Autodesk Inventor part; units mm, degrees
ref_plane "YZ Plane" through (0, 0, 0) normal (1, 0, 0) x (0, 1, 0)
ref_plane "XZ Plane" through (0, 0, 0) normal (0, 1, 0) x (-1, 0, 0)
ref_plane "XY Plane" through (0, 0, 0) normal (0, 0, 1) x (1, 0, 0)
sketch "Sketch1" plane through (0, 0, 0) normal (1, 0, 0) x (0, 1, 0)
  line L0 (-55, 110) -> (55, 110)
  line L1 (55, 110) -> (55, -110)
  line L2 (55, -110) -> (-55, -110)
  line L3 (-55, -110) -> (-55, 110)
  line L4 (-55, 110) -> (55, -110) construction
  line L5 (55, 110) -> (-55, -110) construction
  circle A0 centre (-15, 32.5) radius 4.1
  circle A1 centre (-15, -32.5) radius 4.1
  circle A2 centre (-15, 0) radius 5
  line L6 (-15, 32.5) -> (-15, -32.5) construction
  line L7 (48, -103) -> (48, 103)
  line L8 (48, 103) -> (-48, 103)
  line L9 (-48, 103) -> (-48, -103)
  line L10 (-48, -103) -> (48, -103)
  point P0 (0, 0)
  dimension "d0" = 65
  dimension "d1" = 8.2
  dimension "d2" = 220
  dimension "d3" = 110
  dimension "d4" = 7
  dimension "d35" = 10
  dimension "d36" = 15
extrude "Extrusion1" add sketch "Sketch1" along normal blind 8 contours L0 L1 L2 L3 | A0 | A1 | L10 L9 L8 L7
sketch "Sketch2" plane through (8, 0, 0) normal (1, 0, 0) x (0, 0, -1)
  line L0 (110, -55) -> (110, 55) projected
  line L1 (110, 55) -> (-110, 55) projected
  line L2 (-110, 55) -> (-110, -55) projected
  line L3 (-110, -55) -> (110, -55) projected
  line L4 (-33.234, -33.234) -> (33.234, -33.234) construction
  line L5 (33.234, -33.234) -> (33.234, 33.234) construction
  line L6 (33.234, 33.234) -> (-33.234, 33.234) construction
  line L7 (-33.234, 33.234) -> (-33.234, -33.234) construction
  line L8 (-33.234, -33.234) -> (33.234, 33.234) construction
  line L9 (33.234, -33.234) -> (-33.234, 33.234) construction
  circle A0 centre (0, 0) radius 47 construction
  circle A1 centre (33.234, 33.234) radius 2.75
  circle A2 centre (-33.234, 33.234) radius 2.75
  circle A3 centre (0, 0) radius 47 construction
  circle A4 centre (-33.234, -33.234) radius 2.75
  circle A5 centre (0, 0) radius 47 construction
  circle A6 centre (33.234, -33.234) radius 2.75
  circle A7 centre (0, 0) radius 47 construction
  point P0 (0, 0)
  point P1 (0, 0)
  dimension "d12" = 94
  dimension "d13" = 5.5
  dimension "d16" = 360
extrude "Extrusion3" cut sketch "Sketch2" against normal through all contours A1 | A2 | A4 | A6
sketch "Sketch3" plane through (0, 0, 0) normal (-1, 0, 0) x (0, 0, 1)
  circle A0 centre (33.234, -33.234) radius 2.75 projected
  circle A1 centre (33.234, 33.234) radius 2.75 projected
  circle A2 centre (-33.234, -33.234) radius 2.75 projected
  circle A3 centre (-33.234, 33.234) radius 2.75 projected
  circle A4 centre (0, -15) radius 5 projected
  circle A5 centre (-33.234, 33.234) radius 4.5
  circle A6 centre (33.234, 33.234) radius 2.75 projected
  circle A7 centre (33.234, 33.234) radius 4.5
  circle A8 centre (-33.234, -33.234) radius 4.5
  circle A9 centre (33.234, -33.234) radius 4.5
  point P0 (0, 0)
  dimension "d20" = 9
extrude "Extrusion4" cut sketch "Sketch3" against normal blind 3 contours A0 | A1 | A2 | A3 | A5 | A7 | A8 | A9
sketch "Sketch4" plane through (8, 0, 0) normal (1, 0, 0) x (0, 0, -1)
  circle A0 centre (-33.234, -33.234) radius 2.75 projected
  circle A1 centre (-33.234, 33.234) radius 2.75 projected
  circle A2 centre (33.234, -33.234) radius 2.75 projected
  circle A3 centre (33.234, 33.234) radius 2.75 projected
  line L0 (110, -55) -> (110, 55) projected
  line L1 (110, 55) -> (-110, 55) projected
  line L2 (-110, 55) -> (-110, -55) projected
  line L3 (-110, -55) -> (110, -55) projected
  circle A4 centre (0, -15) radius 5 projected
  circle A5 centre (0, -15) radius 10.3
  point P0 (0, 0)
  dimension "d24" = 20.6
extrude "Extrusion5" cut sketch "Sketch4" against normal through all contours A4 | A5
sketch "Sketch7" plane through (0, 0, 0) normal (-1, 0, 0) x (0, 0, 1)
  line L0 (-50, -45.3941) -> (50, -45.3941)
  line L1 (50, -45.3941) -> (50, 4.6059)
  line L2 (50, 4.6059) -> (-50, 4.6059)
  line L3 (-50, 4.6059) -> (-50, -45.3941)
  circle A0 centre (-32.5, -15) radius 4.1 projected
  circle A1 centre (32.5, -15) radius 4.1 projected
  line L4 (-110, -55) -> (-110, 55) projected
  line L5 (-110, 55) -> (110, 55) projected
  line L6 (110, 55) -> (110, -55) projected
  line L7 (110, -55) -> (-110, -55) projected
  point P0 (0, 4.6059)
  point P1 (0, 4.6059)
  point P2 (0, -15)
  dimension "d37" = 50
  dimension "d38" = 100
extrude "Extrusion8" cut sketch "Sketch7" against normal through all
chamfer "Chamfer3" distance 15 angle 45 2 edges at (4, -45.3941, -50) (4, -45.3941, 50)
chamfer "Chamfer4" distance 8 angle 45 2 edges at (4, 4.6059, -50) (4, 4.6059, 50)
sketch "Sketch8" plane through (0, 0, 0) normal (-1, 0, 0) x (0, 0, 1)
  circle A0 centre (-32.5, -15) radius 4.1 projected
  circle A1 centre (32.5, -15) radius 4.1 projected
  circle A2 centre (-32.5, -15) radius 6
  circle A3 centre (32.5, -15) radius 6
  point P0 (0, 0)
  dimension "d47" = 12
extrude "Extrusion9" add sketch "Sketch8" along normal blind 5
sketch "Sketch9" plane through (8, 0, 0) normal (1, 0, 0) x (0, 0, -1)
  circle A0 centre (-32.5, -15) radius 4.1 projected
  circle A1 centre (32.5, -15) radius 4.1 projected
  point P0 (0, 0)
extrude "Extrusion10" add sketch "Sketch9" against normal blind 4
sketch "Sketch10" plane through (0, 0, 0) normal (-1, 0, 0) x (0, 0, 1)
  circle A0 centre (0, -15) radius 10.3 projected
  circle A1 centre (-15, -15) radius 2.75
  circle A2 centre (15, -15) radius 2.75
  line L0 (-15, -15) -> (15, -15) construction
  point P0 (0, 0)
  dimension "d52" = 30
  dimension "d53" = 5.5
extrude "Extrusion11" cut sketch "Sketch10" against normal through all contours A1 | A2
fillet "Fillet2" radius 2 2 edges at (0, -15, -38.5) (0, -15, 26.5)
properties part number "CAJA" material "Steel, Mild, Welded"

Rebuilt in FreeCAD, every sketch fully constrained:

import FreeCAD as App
import Part
import Sketcher

V = App.Vector


def edges_at(feature, points):
    """Names of the edges that pass closest to the given points."""
    edges = feature.Shape.Edges
    near = lambda p: min(range(len(edges)), key=lambda i: edges[i].distToShape(Part.Vertex(*p))[0])
    return sorted({f"Edge{near(p) + 1}" for p in points})


def add_polygon(sketch, points):
    """Adds a closed chain of lines whose ends are joined by coincident constraints."""
    first, n = sketch.GeometryCount, len(points)
    for a, b in zip(points, points[1:] + points[:1]):
        sketch.addGeometry(Part.LineSegment(App.Vector(*a, 0), App.Vector(*b, 0)), False)
    for i in range(n):
        sketch.addConstraint(Sketcher.Constraint("Coincident", first + i, 2, first + (i + 1) % n, 1))

doc = App.newDocument("Part")
body = doc.addObject("PartDesign::Body", "Body")

# Sketch on YZ plane
sketch1 = body.newObject("Sketcher::SketchObject", "Sketch")
sketch1.AttachmentSupport = (doc.getObject("YZ_Plane"), [""])
sketch1.MapMode = "FlatFace"
add_polygon(sketch1, [(55, 110), (-55, 110), (-55, -110), (55, -110)])  # lines 0-3
sketch1.addGeometry(Part.Circle(V(-15, 0, 0), V(0, 0, 1), 5), False)  # 4
sketch1.addConstraint([
    Sketcher.Constraint("Horizontal", 0),
    Sketcher.Constraint("Vertical", 1),
    Sketcher.Constraint("Horizontal", 2),
    Sketcher.Constraint("Vertical", 3),
    Sketcher.Constraint("Symmetric", 0, 2, 2, 2, -1, 1),
    Sketcher.Constraint("PointOnObject", 4, 3, -1),
    Sketcher.Constraint("Diameter", 4, 10.0),
    Sketcher.Constraint("DistanceX", 0, 2, 0, 1, 110.0),
    Sketcher.Constraint("DistanceY", 1, 2, 1, 1, 220.0),
    Sketcher.Constraint("DistanceX", 4, 3, -1, 1, 15.0),
])
pad1 = body.newObject("PartDesign::Pad", "Pad")
pad1.Profile = sketch1
pad1.Length = 8

# Sketch on YZ plane
sketch2 = body.newObject("Sketcher::SketchObject", "Sketch001")
sketch2.AttachmentSupport = (doc.getObject("YZ_Plane"), [""])
sketch2.MapMode = "FlatFace"
sketch2.AttachmentOffset = App.Placement(V(0, 0, 8), App.Rotation())
sketch2.addGeometry([
    Part.Circle(V(33.2, -33.2, 0), V(0, 0, 1), 2.8),
    Part.Circle(V(33.2, 33.2, 0), V(0, 0, 1), 2.8),
    Part.Circle(V(-33.2, 33.2, 0), V(0, 0, 1), 2.8),
    Part.Circle(V(-33.2, -33.2, 0), V(0, 0, 1), 2.8),
], False)
sketch2.addConstraint([
    Sketcher.Constraint("Equal", 0, 1),
    Sketcher.Constraint("Equal", 1, 2),
    Sketcher.Constraint("Equal", 2, 3),
    Sketcher.Constraint("Symmetric", 0, 3, 2, 3, -1, 1),
    Sketcher.Constraint("Symmetric", 1, 3, 3, 3, -1, 1),
    Sketcher.Constraint("Symmetric", 1, 3, 2, 3, -2),
    Sketcher.Constraint("Diameter", 0, 5.5),
    Sketcher.Constraint("DistanceX", -1, 1, 0, 3, 33.234),
    Sketcher.Constraint("DistanceY", 0, 3, -1, 1, 33.234),
])
pocket1 = body.newObject("PartDesign::Pocket", "Pocket")
pocket1.Profile = sketch2
pocket1.Type = "ThroughAll"

# Sketch on YZ plane
sketch3 = body.newObject("Sketcher::SketchObject", "Sketch002")
sketch3.AttachmentSupport = (doc.getObject("YZ_Plane"), [""])
sketch3.MapMode = "FlatFace"
sketch3.addGeometry([
    Part.Circle(V(-33.2, 33.2, 0), V(0, 0, 1), 4.5),
    Part.Circle(V(33.2, 33.2, 0), V(0, 0, 1), 4.5),
    Part.Circle(V(-33.2, -33.2, 0), V(0, 0, 1), 4.5),
    Part.Circle(V(33.2, -33.2, 0), V(0, 0, 1), 4.5),
], False)
sketch3.addConstraint([
    Sketcher.Constraint("Equal", 0, 1),
    Sketcher.Constraint("Equal", 1, 2),
    Sketcher.Constraint("Equal", 2, 3),
    Sketcher.Constraint("Symmetric", 1, 3, 2, 3, -1, 1),
    Sketcher.Constraint("Symmetric", 0, 3, 3, 3, -1, 1),
    Sketcher.Constraint("Symmetric", 0, 3, 1, 3, -2),
    Sketcher.Constraint("Diameter", 0, 9.0),
    Sketcher.Constraint("DistanceX", 0, 3, -1, 1, 33.234),
    Sketcher.Constraint("DistanceY", -1, 1, 0, 3, 33.234),
])
pocket2 = body.newObject("PartDesign::Pocket", "Pocket001")
pocket2.Profile = sketch3
pocket2.Length = 3
pocket2.Reversed = True

# Sketch on YZ plane
sketch4 = body.newObject("Sketcher::SketchObject", "Sketch003")
sketch4.AttachmentSupport = (doc.getObject("YZ_Plane"), [""])
sketch4.MapMode = "FlatFace"
sketch4.AttachmentOffset = App.Placement(V(0, 0, 8), App.Rotation())
sketch4.addGeometry(Part.Circle(V(-15, 0, 0), V(0, 0, 1), 10), False)
sketch4.addConstraint([
    Sketcher.Constraint("PointOnObject", 0, 3, -1),
    Sketcher.Constraint("Diameter", 0, 20.6),
    Sketcher.Constraint("DistanceX", 0, 3, -1, 1, 15.0),
])
pocket3 = body.newObject("PartDesign::Pocket", "Pocket002")
pocket3.Profile = sketch4
pocket3.Type = "ThroughAll"

# Sketch on YZ plane
sketch5 = body.newObject("Sketcher::SketchObject", "Sketch004")
sketch5.AttachmentSupport = (doc.getObject("YZ_Plane"), [""])
sketch5.MapMode = "FlatFace"
sketch5.addGeometry(Part.Circle(V(-15, -32.5, 0), V(0, 0, 1), 4.1), False)  # 0
sketch5.addGeometry(Part.Circle(V(-15, 32.5, 0), V(0, 0, 1), 4.1), False)  # 1
add_polygon(sketch5, [(55, -110), (-55, -110), (-55, 110), (55, 110)])  # lines 2-5
add_polygon(sketch5, [(-45.4, 50), (-45.4, -50), (4.6, -50), (4.6, 50)])  # lines 6-9
sketch5.addConstraint([
    Sketcher.Constraint("Horizontal", 2),
    Sketcher.Constraint("Vertical", 3),
    Sketcher.Constraint("Horizontal", 4),
    Sketcher.Constraint("Vertical", 5),
    Sketcher.Constraint("Vertical", 6),
    Sketcher.Constraint("Horizontal", 7),
    Sketcher.Constraint("Vertical", 8),
    Sketcher.Constraint("Horizontal", 9),
    Sketcher.Constraint("Equal", 0, 1),
    Sketcher.Constraint("Symmetric", 2, 2, 4, 2, -1, 1),
    Sketcher.Constraint("Symmetric", 0, 3, 1, 3, -1),
    Sketcher.Constraint("DistanceX", 7, 1, 7, 2, 50.0),
    Sketcher.Constraint("DistanceY", 6, 2, 6, 1, 100.0),
    Sketcher.Constraint("DistanceY", 6, 2, -1, 1, 50.0),
    Sketcher.Constraint("Diameter", 0, 8.2),
    Sketcher.Constraint("DistanceX", 2, 2, 2, 1, 110.0),
    Sketcher.Constraint("DistanceY", 3, 1, 3, 2, 220.0),
    Sketcher.Constraint("DistanceX", 0, 3, -1, 1, 15.0),
    Sketcher.Constraint("DistanceY", 0, 3, 1, 3, 65.0),
    Sketcher.Constraint("DistanceX", 6, 2, -1, 1, 45.394),
])
pocket4 = body.newObject("PartDesign::Pocket", "Pocket003")
pocket4.Profile = sketch5
pocket4.Type = "ThroughAll"
pocket4.Reversed = True
doc.recompute()

chamfer = body.newObject("PartDesign::Chamfer", "Chamfer")
chamfer.Base = (pocket4, edges_at(pocket4, [(4, -45.394, -50), (4, -45.394, 50)]))
chamfer.Size = 15
doc.recompute()

chamfer2 = body.newObject("PartDesign::Chamfer", "Chamfer001")
chamfer2.Base = (chamfer, edges_at(chamfer, [(4, 4.606, -50), (4, 4.606, 50)]))
chamfer2.Size = 8

# Sketch on YZ plane
sketch6 = body.newObject("Sketcher::SketchObject", "Sketch005")
sketch6.AttachmentSupport = (doc.getObject("YZ_Plane"), [""])
sketch6.MapMode = "FlatFace"
sketch6.addGeometry([
    Part.Circle(V(-15, -32.5, 0), V(0, 0, 1), 6),
    Part.Circle(V(-15, -32.5, 0), V(0, 0, 1), 4.1),
    Part.Circle(V(-15, 32.5, 0), V(0, 0, 1), 6),
    Part.Circle(V(-15, 32.5, 0), V(0, 0, 1), 4.1),
], False)
sketch6.addConstraint([
    Sketcher.Constraint("Coincident", 1, 3, 0, 3),
    Sketcher.Constraint("Coincident", 3, 3, 2, 3),
    Sketcher.Constraint("Equal", 0, 2),
    Sketcher.Constraint("Equal", 1, 3),
    Sketcher.Constraint("Symmetric", 0, 3, 2, 3, -1),
    Sketcher.Constraint("Diameter", 0, 12.0),
    Sketcher.Constraint("Diameter", 1, 8.2),
    Sketcher.Constraint("DistanceX", 0, 3, -1, 1, 15.0),
    Sketcher.Constraint("DistanceY", 0, 3, 2, 3, 65.0),
])
pad2 = body.newObject("PartDesign::Pad", "Pad001")
pad2.Profile = sketch6
pad2.Length = 5
pad2.Reversed = True

# Sketch on YZ plane
sketch7 = body.newObject("Sketcher::SketchObject", "Sketch006")
sketch7.AttachmentSupport = (doc.getObject("YZ_Plane"), [""])
sketch7.MapMode = "FlatFace"
sketch7.AttachmentOffset = App.Placement(V(0, 0, 8), App.Rotation())
sketch7.addGeometry([
    Part.Circle(V(-15, 32.5, 0), V(0, 0, 1), 4.1),
    Part.Circle(V(-15, -32.5, 0), V(0, 0, 1), 4.1),
], False)
sketch7.addConstraint([
    Sketcher.Constraint("Equal", 0, 1),
    Sketcher.Constraint("Symmetric", 0, 3, 1, 3, -1),
    Sketcher.Constraint("Diameter", 0, 8.2),
    Sketcher.Constraint("DistanceX", 0, 3, -1, 1, 15.0),
    Sketcher.Constraint("DistanceY", 1, 3, 0, 3, 65.0),
])
pad3 = body.newObject("PartDesign::Pad", "Pad002")
pad3.Profile = sketch7
pad3.Length = 4
pad3.Reversed = True

# Sketch on YZ plane
sketch8 = body.newObject("Sketcher::SketchObject", "Sketch007")
sketch8.AttachmentSupport = (doc.getObject("YZ_Plane"), [""])
sketch8.MapMode = "FlatFace"
sketch8.addGeometry([
    Part.Circle(V(-15, -15, 0), V(0, 0, 1), 2.8),
    Part.Circle(V(-15, 15, 0), V(0, 0, 1), 2.8),
], False)
sketch8.addConstraint([
    Sketcher.Constraint("Equal", 0, 1),
    Sketcher.Constraint("Symmetric", 0, 3, 1, 3, -1),
    Sketcher.Constraint("Diameter", 0, 5.5),
    Sketcher.Constraint("DistanceY", 0, 3, 1, 3, 30.0),
    Sketcher.Constraint("DistanceX", 0, 3, -1, 1, 15.0),
])
pocket5 = body.newObject("PartDesign::Pocket", "Pocket004")
pocket5.Profile = sketch8
pocket5.Type = "ThroughAll"
pocket5.Reversed = True
doc.recompute()

fillet = body.newObject("PartDesign::Fillet", "Fillet")
fillet.Base = (pocket5, edges_at(pocket5, [(0, -15, -38.5), (0, -15, 26.5)]))
fillet.Radius = 2

doc.recompute()
